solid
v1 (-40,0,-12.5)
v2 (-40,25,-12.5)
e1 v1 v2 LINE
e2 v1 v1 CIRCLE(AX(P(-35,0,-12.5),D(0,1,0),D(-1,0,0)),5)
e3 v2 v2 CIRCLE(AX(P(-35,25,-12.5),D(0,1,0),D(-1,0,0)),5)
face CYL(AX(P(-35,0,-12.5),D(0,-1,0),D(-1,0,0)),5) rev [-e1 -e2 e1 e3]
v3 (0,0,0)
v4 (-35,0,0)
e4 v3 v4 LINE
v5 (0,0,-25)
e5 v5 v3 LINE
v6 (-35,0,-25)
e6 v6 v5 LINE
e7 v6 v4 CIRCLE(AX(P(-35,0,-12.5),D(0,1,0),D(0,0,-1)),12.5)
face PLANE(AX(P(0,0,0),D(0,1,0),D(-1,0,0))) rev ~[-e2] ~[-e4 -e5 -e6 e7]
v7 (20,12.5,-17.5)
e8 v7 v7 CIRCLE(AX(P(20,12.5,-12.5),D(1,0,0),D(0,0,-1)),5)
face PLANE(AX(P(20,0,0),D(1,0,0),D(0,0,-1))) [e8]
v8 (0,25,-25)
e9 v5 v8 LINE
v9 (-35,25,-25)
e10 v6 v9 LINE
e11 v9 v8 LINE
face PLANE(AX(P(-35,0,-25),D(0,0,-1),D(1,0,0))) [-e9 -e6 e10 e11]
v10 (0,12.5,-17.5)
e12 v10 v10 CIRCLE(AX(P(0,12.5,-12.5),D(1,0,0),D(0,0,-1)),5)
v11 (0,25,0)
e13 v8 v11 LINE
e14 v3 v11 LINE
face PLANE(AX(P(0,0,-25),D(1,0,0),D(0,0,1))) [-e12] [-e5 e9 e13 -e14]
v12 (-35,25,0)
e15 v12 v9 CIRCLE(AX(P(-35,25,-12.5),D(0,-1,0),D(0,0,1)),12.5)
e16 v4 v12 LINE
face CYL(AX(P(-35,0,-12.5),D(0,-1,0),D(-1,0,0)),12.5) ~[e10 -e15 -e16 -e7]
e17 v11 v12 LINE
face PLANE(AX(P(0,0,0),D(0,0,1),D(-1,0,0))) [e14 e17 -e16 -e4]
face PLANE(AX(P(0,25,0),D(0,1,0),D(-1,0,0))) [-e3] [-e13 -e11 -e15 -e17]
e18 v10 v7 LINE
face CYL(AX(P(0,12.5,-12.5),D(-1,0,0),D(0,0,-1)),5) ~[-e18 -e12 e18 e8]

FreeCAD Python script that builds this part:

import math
import FreeCAD as App
import Part
import Sketcher
from FreeCAD import Vector

doc = App.newDocument("Part")
body = doc.addObject("PartDesign::Body", "Body")

sketch1 = doc.addObject("Sketcher::SketchObject", "Sketch")
body.addObject(sketch1)
sketch1.AttachmentSupport = (doc.XZ_Plane, [""])
sketch1.MapMode = "FlatFace"
sketch1.addGeometry([
    Part.LineSegment(Vector(-35, 0, 0), Vector(0, 0, 0)),
    Part.LineSegment(Vector(0, 0, 0), Vector(0, -25, 0)),
    Part.LineSegment(Vector(0, -25, 0), Vector(-35, -25, 0)),
    Part.ArcOfCircle(Part.Circle(Vector(-35, -12, 0), Vector(0, 0, 1), 12), math.radians(90), math.radians(270)),
    Part.Circle(Vector(-35, -12, 0), Vector(0, 0, 1), 5),
], False)
sketch1.addConstraint([
    Sketcher.Constraint("Coincident", 0, 2, 1, 1),
    Sketcher.Constraint("Coincident", 1, 2, 2, 1),
    Sketcher.Constraint("Tangent", 2, 2, 3, 2),
    Sketcher.Constraint("Tangent", 3, 1, 0, 1),
    Sketcher.Constraint("Horizontal", 0),
    Sketcher.Constraint("Vertical", 1),
    Sketcher.Constraint("Horizontal", 2),
    Sketcher.Constraint("Coincident", 0, 2, -1, 1),
    Sketcher.Constraint("Coincident", 4, 3, 3, 3),
    Sketcher.Constraint("Diameter", 4, 10.0),
    Sketcher.Constraint("Radius", 3, 12.5),
    Sketcher.Constraint("DistanceX", 0, 1, 0, 2, 35.0),
])
pad1 = doc.addObject("PartDesign::Pad", "Pad")
body.addObject(pad1)
pad1.Profile = sketch1
pad1.Length = 25
pad1.Reversed = True

sketch2 = doc.addObject("Sketcher::SketchObject", "Sketch001")
body.addObject(sketch2)
sketch2.AttachmentSupport = (doc.YZ_Plane, [""])
sketch2.MapMode = "FlatFace"
sketch2.addGeometry(Part.Circle(Vector(12, -12, 0), Vector(0, 0, 1), 5), False)
sketch2.addConstraint([
    Sketcher.Constraint("Diameter", 0, 10.0),
    Sketcher.Constraint("DistanceX", -1, 1, 0, 3, 12.5),
    Sketcher.Constraint("DistanceY", 0, 3, -1, 1, 12.5),
])
pad2 = doc.addObject("PartDesign::Pad", "Pad001")
body.addObject(pad2)
pad2.Profile = sketch2
pad2.Length = 20

doc.recompute()
